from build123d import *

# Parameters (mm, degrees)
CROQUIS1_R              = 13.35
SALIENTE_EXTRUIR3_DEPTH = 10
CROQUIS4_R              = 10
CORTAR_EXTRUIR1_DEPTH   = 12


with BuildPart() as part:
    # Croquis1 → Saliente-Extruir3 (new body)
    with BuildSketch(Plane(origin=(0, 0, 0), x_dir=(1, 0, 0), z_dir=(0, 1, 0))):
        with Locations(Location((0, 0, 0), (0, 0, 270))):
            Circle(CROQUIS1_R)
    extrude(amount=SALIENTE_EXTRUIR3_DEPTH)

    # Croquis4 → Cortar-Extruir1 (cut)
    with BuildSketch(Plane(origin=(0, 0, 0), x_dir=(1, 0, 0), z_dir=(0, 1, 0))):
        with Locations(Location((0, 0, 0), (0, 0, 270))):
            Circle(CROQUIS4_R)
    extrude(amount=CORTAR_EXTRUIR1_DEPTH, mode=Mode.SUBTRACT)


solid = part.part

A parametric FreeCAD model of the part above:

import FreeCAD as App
import Part
import Sketcher
from FreeCAD import Vector
Q = App.Units.Quantity

doc = App.newDocument("Part")
body = doc.addObject("PartDesign::Body", "Body")

# Sketch on XZ plane
sketch1 = body.newObject("Sketcher::SketchObject", "Sketch")
sketch1.AttachmentSupport = (doc.getObject("XZ_Plane"), [""])
sketch1.MapMode = "FlatFace"
sketch1.addGeometry(Part.Circle(Vector(0, 0, 0), Vector(0, 0, 1), 13), False)
sketch1.addConstraint([
    Sketcher.Constraint("Coincident", 0, 3, -1, 1),
    Sketcher.Constraint("Diameter", 0, Q("26.7 mm")),
])
pad1 = body.newObject("PartDesign::Pad", "Pad")
pad1.Profile = sketch1
pad1.Length = 10
pad1.Reversed = True

# Sketch on XZ plane
sketch2 = body.newObject("Sketcher::SketchObject", "Sketch001")
sketch2.AttachmentSupport = (doc.getObject("XZ_Plane"), [""])
sketch2.MapMode = "FlatFace"
sketch2.addGeometry(Part.Circle(Vector(0, 0, 0), Vector(0, 0, 1), 10), False)
sketch2.addConstraint([
    Sketcher.Constraint("Coincident", 0, 3, -1, 1),
    Sketcher.Constraint("Diameter", 0, Q("20 mm")),
])
pocket1 = body.newObject("PartDesign::Pocket", "Pocket")
pocket1.Profile = sketch2
pocket1.Length = 12

doc.recompute()
